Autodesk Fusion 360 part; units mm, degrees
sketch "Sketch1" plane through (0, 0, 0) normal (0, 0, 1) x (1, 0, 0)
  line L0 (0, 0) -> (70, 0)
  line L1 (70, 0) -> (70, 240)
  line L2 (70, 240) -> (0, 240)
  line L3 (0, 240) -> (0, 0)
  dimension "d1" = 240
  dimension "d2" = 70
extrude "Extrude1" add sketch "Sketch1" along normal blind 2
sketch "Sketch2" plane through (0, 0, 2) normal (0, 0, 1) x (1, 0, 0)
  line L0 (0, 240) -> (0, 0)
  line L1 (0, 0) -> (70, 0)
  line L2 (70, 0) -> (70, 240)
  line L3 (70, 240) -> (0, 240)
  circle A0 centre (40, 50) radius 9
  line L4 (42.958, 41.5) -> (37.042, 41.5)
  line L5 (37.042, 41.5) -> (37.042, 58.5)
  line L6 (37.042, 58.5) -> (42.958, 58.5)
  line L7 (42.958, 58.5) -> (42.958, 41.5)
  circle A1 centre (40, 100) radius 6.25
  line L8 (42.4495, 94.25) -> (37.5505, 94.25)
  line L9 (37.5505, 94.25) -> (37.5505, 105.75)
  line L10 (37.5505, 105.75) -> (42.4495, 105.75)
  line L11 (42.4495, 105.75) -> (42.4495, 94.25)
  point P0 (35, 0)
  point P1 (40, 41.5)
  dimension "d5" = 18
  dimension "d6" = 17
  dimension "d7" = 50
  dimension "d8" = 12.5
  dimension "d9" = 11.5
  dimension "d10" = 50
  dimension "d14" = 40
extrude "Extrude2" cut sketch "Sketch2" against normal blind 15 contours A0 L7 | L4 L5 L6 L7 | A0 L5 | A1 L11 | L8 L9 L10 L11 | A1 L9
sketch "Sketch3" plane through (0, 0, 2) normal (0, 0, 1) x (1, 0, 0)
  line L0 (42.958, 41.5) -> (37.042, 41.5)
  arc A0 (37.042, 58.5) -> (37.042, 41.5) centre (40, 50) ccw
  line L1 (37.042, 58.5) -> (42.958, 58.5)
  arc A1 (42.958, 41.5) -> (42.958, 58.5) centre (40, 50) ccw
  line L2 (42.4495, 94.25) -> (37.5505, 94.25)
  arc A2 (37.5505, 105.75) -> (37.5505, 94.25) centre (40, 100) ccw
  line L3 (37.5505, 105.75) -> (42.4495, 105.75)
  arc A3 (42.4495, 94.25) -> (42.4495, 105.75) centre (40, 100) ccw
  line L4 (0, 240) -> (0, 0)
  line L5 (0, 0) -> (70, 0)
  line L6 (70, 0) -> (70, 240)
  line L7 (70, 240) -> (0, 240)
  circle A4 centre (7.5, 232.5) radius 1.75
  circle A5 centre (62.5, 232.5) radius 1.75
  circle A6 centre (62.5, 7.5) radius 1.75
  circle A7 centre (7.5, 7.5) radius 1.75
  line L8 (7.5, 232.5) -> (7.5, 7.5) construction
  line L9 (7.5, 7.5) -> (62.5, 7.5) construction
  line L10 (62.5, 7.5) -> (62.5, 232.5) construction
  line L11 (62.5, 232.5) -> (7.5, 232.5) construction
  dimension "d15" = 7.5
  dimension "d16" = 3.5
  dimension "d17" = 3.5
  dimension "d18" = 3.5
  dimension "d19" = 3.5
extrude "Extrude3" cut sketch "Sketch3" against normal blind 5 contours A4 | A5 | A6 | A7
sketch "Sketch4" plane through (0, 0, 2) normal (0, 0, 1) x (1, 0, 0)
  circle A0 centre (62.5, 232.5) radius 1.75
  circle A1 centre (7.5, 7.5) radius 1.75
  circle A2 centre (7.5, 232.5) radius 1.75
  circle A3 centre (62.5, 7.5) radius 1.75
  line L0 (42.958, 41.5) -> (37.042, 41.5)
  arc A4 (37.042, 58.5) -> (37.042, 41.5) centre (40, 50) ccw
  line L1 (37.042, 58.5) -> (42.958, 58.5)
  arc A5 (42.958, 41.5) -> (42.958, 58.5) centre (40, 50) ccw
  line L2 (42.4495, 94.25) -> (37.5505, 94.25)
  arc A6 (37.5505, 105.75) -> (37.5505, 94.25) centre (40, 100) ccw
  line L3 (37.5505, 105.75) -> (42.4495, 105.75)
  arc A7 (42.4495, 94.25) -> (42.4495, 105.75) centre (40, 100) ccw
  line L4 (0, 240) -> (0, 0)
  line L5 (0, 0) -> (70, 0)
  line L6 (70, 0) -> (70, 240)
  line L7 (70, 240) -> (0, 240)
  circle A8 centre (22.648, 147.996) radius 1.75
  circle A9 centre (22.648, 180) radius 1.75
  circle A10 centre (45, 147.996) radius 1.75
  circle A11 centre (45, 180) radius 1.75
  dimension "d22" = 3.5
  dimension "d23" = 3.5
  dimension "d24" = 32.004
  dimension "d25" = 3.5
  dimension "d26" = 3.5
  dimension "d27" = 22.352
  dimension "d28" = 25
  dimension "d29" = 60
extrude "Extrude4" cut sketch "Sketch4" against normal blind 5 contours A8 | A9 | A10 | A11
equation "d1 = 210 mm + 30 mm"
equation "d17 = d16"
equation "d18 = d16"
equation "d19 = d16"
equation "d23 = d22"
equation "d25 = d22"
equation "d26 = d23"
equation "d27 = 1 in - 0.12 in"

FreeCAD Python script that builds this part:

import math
import FreeCAD as App
import Part
import Sketcher
from FreeCAD import Vector


def add_polygon(sketch, points):
    """Adds a closed chain of lines whose ends are joined by coincident constraints."""
    first, n = sketch.GeometryCount, len(points)
    for a, b in zip(points, points[1:] + points[:1]):
        sketch.addGeometry(Part.LineSegment(App.Vector(*a, 0), App.Vector(*b, 0)), False)
    for i in range(n):
        sketch.addConstraint(Sketcher.Constraint("Coincident", first + i, 2, first + (i + 1) % n, 1))

doc = App.newDocument("Part")
body = doc.addObject("PartDesign::Body", "Body")

# Sketch on XY plane
sketch1 = body.newObject("Sketcher::SketchObject", "Sketch")
sketch1.AttachmentSupport = (doc.getObject("XY_Plane"), [""])
sketch1.MapMode = "FlatFace"
add_polygon(sketch1, [(0, 240), (0, 0), (70, 0), (70, 240)])  # lines 0-3
sketch1.addConstraint(Sketcher.Constraint("Vertical", 0))
sketch1.addConstraint(Sketcher.Constraint("Horizontal", 1))
sketch1.addConstraint(Sketcher.Constraint("Vertical", 2))
sketch1.addConstraint(Sketcher.Constraint("Horizontal", 3))
sketch1.addConstraint(Sketcher.Constraint("Coincident", 0, 2, -1, 1))
sketch1.addConstraint(Sketcher.Constraint("DistanceX", 1, 1, 1, 2, 70.0))
sketch1.addConstraint(Sketcher.Constraint("DistanceY", 0, 2, 0, 1, 240.0))
pad1 = body.newObject("PartDesign::Pad", "Pad")
pad1.Profile = sketch1
pad1.Length = 2

# Sketch on XY plane
sketch2 = body.newObject("Sketcher::SketchObject", "Sketch001")
sketch2.AttachmentSupport = (doc.getObject("XY_Plane"), [""])
sketch2.MapMode = "FlatFace"
sketch2.AttachmentOffset = App.Placement(Vector(0, 0, 2), App.Rotation())
sketch2.addGeometry(Part.ArcOfCircle(Part.Circle(Vector(40, 50, 0), Vector(0, 0, 1), 9), math.radians(-71), math.radians(71)), False)
sketch2.addGeometry(Part.LineSegment(Vector(43, 58.5, 0), Vector(37, 58.5, 0)), False)
sketch2.addGeometry(Part.ArcOfCircle(Part.Circle(Vector(40, 50, 0), Vector(0, 0, 1), 9), math.radians(109), math.radians(251)), False)
sketch2.addGeometry(Part.LineSegment(Vector(37, 41.5, 0), Vector(43, 41.5, 0)), False)
sketch2.addGeometry(Part.ArcOfCircle(Part.Circle(Vector(40, 100, 0), Vector(0, 0, 1), 6.2), math.radians(-67), math.radians(67)), False)
sketch2.addGeometry(Part.LineSegment(Vector(42.4, 105.8, 0), Vector(37.6, 105.8, 0)), False)
sketch2.addGeometry(Part.ArcOfCircle(Part.Circle(Vector(40, 100, 0), Vector(0, 0, 1), 6.2), math.radians(113), math.radians(247)), False)
sketch2.addGeometry(Part.LineSegment(Vector(37.6, 94.2, 0), Vector(42.4, 94.2, 0)), False)
sketch2.addConstraint(Sketcher.Constraint("Coincident", 0, 2, 1, 1))
sketch2.addConstraint(Sketcher.Constraint("Coincident", 1, 2, 2, 1))
sketch2.addConstraint(Sketcher.Constraint("Coincident", 2, 2, 3, 1))
sketch2.addConstraint(Sketcher.Constraint("Coincident", 3, 2, 0, 1))
sketch2.addConstraint(Sketcher.Constraint("Coincident", 4, 2, 5, 1))
sketch2.addConstraint(Sketcher.Constraint("Coincident", 5, 2, 6, 1))
sketch2.addConstraint(Sketcher.Constraint("Coincident", 6, 2, 7, 1))
sketch2.addConstraint(Sketcher.Constraint("Coincident", 7, 2, 4, 1))
sketch2.addConstraint(Sketcher.Constraint("Horizontal", 1))
sketch2.addConstraint(Sketcher.Constraint("Horizontal", 3))
sketch2.addConstraint(Sketcher.Constraint("Horizontal", 5))
sketch2.addConstraint(Sketcher.Constraint("Horizontal", 7))
sketch2.addConstraint(Sketcher.Constraint("Coincident", 2, 3, 0, 3))
sketch2.addConstraint(Sketcher.Constraint("Coincident", 6, 3, 4, 3))
sketch2.addConstraint(Sketcher.Constraint("Equal", 0, 2))
sketch2.addConstraint(Sketcher.Constraint("Equal", 4, 6))
sketch2.addConstraint(Sketcher.Constraint("Vertical", 2, 3, 4, 3))
sketch2.addConstraint(Sketcher.Constraint("Vertical", 1, 2, 2, 2))
sketch2.addConstraint(Sketcher.Constraint("Vertical", 5, 2, 6, 2))
sketch2.addConstraint(Sketcher.Constraint("Radius", 0, 9.0))
sketch2.addConstraint(Sketcher.Constraint("Radius", 4, 6.25))
sketch2.addConstraint(Sketcher.Constraint("DistanceX", -1, 1, 0, 3, 40.0))
sketch2.addConstraint(Sketcher.Constraint("DistanceY", -1, 1, 0, 3, 50.0))
sketch2.addConstraint(Sketcher.Constraint("DistanceY", 0, 3, 4, 3, 50.0))
sketch2.addConstraint(Sketcher.Constraint("DistanceY", 2, 2, 1, 2, 17.0))
sketch2.addConstraint(Sketcher.Constraint("DistanceY", 6, 2, 5, 2, 11.5))
pocket1 = body.newObject("PartDesign::Pocket", "Pocket")
pocket1.Profile = sketch2
pocket1.Length = 15

# Sketch on XY plane
sketch3 = body.newObject("Sketcher::SketchObject", "Sketch002")
sketch3.AttachmentSupport = (doc.getObject("XY_Plane"), [""])
sketch3.MapMode = "FlatFace"
sketch3.AttachmentOffset = App.Placement(Vector(0, 0, 2), App.Rotation())
sketch3.addGeometry(Part.Circle(Vector(7.5, 232.5, 0), Vector(0, 0, 1), 1.8), False)
sketch3.addGeometry(Part.Circle(Vector(62.5, 232.5, 0), Vector(0, 0, 1), 1.8), False)
sketch3.addGeometry(Part.Circle(Vector(62.5, 7.5, 0), Vector(0, 0, 1), 1.8), False)
sketch3.addGeometry(Part.Circle(Vector(7.5, 7.5, 0), Vector(0, 0, 1), 1.8), False)
sketch3.addConstraint(Sketcher.Constraint("Equal", 0, 1))
sketch3.addConstraint(Sketcher.Constraint("Equal", 1, 2))
sketch3.addConstraint(Sketcher.Constraint("Equal", 2, 3))
sketch3.addConstraint(Sketcher.Constraint("Horizontal", 0, 3, 1, 3))
sketch3.addConstraint(Sketcher.Constraint("Horizontal", 2, 3, 3, 3))
sketch3.addConstraint(Sketcher.Constraint("Vertical", 1, 3, 2, 3))
sketch3.addConstraint(Sketcher.Constraint("Vertical", 0, 3, 3, 3))
sketch3.addConstraint(Sketcher.Constraint("Diameter", 0, 3.5))
sketch3.addConstraint(Sketcher.Constraint("DistanceX", -1, 1, 0, 3, 7.5))
sketch3.addConstraint(Sketcher.Constraint("DistanceY", -1, 1, 2, 3, 7.5))
sketch3.addConstraint(Sketcher.Constraint("DistanceX", 0, 3, 1, 3, 55.0))
sketch3.addConstraint(Sketcher.Constraint("DistanceY", 2, 3, 1, 3, 225.0))
pocket2 = body.newObject("PartDesign::Pocket", "Pocket001")
pocket2.Profile = sketch3
pocket2.Length = 5

# Sketch on XY plane
sketch4 = body.newObject("Sketcher::SketchObject", "Sketch003")
sketch4.AttachmentSupport = (doc.getObject("XY_Plane"), [""])
sketch4.MapMode = "FlatFace"
sketch4.AttachmentOffset = App.Placement(Vector(0, 0, 2), App.Rotation())
sketch4.addGeometry(Part.Circle(Vector(22.6, 148, 0), Vector(0, 0, 1), 1.8), False)
sketch4.addGeometry(Part.Circle(Vector(22.6, 180, 0), Vector(0, 0, 1), 1.8), False)
sketch4.addGeometry(Part.Circle(Vector(45, 148, 0), Vector(0, 0, 1), 1.8), False)
sketch4.addGeometry(Part.Circle(Vector(45, 180, 0), Vector(0, 0, 1), 1.8), False)
sketch4.addConstraint(Sketcher.Constraint("Equal", 0, 1))
sketch4.addConstraint(Sketcher.Constraint("Equal", 1, 2))
sketch4.addConstraint(Sketcher.Constraint("Equal", 2, 3))
sketch4.addConstraint(Sketcher.Constraint("Horizontal", 0, 3, 2, 3))
sketch4.addConstraint(Sketcher.Constraint("Horizontal", 1, 3, 3, 3))
sketch4.addConstraint(Sketcher.Constraint("Vertical", 0, 3, 1, 3))
sketch4.addConstraint(Sketcher.Constraint("Vertical", 2, 3, 3, 3))
sketch4.addConstraint(Sketcher.Constraint("Diameter", 0, 3.5))
sketch4.addConstraint(Sketcher.Constraint("DistanceY", -1, 1, 1, 3, 180.0))
sketch4.addConstraint(Sketcher.Constraint("DistanceX", -1, 1, 2, 3, 45.0))
sketch4.addConstraint(Sketcher.Constraint("DistanceY", 0, 3, 1, 3, 32.004))
sketch4.addConstraint(Sketcher.Constraint("DistanceX", 0, 3, 2, 3, 22.352))
pocket3 = body.newObject("PartDesign::Pocket", "Pocket002")
pocket3.Profile = sketch4
pocket3.Length = 5

doc.recompute()
